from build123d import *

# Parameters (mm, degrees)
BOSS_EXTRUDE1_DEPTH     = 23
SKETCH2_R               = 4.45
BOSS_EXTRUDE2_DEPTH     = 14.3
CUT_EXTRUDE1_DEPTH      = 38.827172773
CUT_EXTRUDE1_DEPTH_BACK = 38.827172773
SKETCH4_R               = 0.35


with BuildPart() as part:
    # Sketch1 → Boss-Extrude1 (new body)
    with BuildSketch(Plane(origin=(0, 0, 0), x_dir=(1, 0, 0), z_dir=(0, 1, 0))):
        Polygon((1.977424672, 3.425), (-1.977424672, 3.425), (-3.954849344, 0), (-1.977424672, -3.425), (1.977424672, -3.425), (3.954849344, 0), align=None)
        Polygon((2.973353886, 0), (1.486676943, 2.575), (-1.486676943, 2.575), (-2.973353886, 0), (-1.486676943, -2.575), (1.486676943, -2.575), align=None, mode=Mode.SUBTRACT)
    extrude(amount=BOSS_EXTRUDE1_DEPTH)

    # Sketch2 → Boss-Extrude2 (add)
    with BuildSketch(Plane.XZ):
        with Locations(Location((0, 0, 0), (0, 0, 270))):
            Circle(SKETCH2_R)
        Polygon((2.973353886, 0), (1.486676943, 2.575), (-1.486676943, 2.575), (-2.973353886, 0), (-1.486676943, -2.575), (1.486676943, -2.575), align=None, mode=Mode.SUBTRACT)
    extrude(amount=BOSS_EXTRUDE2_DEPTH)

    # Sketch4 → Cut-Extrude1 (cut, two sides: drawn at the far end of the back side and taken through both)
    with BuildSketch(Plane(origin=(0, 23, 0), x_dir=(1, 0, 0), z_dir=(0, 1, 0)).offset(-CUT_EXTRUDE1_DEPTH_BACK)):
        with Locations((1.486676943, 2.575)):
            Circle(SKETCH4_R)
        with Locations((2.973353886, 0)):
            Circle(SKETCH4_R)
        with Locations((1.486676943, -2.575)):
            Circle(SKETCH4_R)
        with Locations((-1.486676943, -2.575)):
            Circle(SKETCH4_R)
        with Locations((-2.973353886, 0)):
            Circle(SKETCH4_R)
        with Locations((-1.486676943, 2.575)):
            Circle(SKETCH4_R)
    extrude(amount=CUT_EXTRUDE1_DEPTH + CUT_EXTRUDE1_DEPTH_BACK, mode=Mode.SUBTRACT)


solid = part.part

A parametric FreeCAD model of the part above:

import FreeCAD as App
import Part
import Sketcher

V = App.Vector
Q = App.Units.Quantity


def add_polygon(sketch, points):
    """Adds a closed chain of lines whose ends are joined by coincident constraints."""
    first, n = sketch.GeometryCount, len(points)
    for a, b in zip(points, points[1:] + points[:1]):
        sketch.addGeometry(Part.LineSegment(App.Vector(*a, 0), App.Vector(*b, 0)), False)
    for i in range(n):
        sketch.addConstraint(Sketcher.Constraint("Coincident", first + i, 2, first + (i + 1) % n, 1))

doc = App.newDocument("Part")
body = doc.addObject("PartDesign::Body", "Body")

sketch1 = body.newObject("Sketcher::SketchObject", "Sketch")
sketch1.AttachmentSupport = (doc.getObject("XZ_Plane"), [""])
sketch1.MapMode = "FlatFace"
add_polygon(sketch1, [(2, -3.4), (-2, -3.4), (-4, 0), (-2, 3.4), (2, 3.4), (4, 0)])
add_polygon(sketch1, [(1.5, -2.6), (3, 0), (1.5, 2.6), (-1.5, 2.6), (-3, 0), (-1.5, -2.6)])
sketch1.addConstraint(Sketcher.Constraint("Horizontal", 0))
sketch1.addConstraint(Sketcher.Constraint("Horizontal", 3))
sketch1.addConstraint(Sketcher.Constraint("Horizontal", 8))
sketch1.addConstraint(Sketcher.Constraint("Horizontal", 11))
sketch1.addConstraint(Sketcher.Constraint("Symmetric", 0, 2, 3, 2, -1, 1))
sketch1.addConstraint(Sketcher.Constraint("Symmetric", 1, 2, 4, 2, -1, 1))
sketch1.addConstraint(Sketcher.Constraint("Symmetric", 6, 2, 9, 2, -1, 1))
sketch1.addConstraint(Sketcher.Constraint("Symmetric", 7, 2, 10, 2, -1, 1))
sketch1.addConstraint(Sketcher.Constraint("PointOnObject", 1, 2, -1))
sketch1.addConstraint(Sketcher.Constraint("PointOnObject", 6, 2, -1))
sketch1.addConstraint(Sketcher.Constraint("Parallel", 2, 5))
sketch1.addConstraint(Sketcher.Constraint("Parallel", 5, 6))
sketch1.addConstraint(Sketcher.Constraint("Parallel", 4, 7))
sketch1.addConstraint(Sketcher.Constraint("Parallel", 6, 9))
sketch1.addConstraint(Sketcher.Constraint("Vertical", 0, 2, 2, 2))
sketch1.addConstraint(Sketcher.Constraint("Angle", 1, Q("120 deg")))
sketch1.addConstraint(Sketcher.Constraint("DistanceY", 0, 2, 2, 2, Q("6.85 mm")))
sketch1.addConstraint(Sketcher.Constraint("DistanceY", 7, 2, 3, 2, Q("0.85 mm")))
sketch1.addConstraint(Sketcher.Constraint("DistanceX", 0, 2, 0, 1, Q("3.954849 mm")))
sketch1.addConstraint(Sketcher.Constraint("DistanceX", 2, 2, 7, 2, Q("3.464102 mm")))
pad1 = body.newObject("PartDesign::Pad", "Pad")
pad1.Profile = sketch1
pad1.Length = 23
pad1.Reversed = True

sketch2 = body.newObject("Sketcher::SketchObject", "Sketch001")
sketch2.AttachmentSupport = (doc.getObject("XZ_Plane"), [""])
sketch2.MapMode = "FlatFace"
sketch2.addGeometry(Part.Circle(V(0, 0, 0), V(0, 0, 1), 4.5), False)
add_polygon(sketch2, [(1.5, 2.6), (3, 0), (1.5, -2.6), (-1.5, -2.6), (-3, 0), (-1.5, 2.6)])
sketch2.addConstraint(Sketcher.Constraint("Horizontal", 3))
sketch2.addConstraint(Sketcher.Constraint("Horizontal", 6))
sketch2.addConstraint(Sketcher.Constraint("Coincident", 0, 3, -1, 1))
sketch2.addConstraint(Sketcher.Constraint("Symmetric", 1, 2, 4, 2, -1, 1))
sketch2.addConstraint(Sketcher.Constraint("Symmetric", 2, 2, 5, 2, -1, 1))
sketch2.addConstraint(Sketcher.Constraint("PointOnObject", 1, 2, -1))
sketch2.addConstraint(Sketcher.Constraint("Parallel", 1, 4))
sketch2.addConstraint(Sketcher.Constraint("Vertical", 3, 2, 5, 2))
sketch2.addConstraint(Sketcher.Constraint("Diameter", 0, Q("8.9 mm")))
sketch2.addConstraint(Sketcher.Constraint("Angle", 1, Q("-60 deg")))
sketch2.addConstraint(Sketcher.Constraint("DistanceY", 3, 2, 5, 2, Q("5.15 mm")))
sketch2.addConstraint(Sketcher.Constraint("DistanceX", 3, 2, 3, 1, Q("2.973354 mm")))
pad2 = body.newObject("PartDesign::Pad", "Pad001")
pad2.Profile = sketch2
pad2.Length = 14.3

sketch3 = body.newObject("Sketcher::SketchObject", "Sketch002")
sketch3.AttachmentSupport = (doc.getObject("XZ_Plane"), [""])
sketch3.MapMode = "FlatFace"
sketch3.AttachmentOffset = App.Placement(V(0, 0, -23), App.Rotation())
sketch3.addGeometry(Part.Circle(V(1.49, -2.58, 0), V(0, 0, 1), 0.35), False)
sketch3.addGeometry(Part.Circle(V(2.97, 0, 0), V(0, 0, 1), 0.35), False)
sketch3.addGeometry(Part.Circle(V(1.49, 2.58, 0), V(0, 0, 1), 0.35), False)
sketch3.addGeometry(Part.Circle(V(-1.49, 2.58, 0), V(0, 0, 1), 0.35), False)
sketch3.addGeometry(Part.Circle(V(-2.97, 0, 0), V(0, 0, 1), 0.35), False)
sketch3.addGeometry(Part.Circle(V(-1.49, -2.58, 0), V(0, 0, 1), 0.35), False)
sketch3.addConstraint(Sketcher.Constraint("Equal", 0, 1))
sketch3.addConstraint(Sketcher.Constraint("Equal", 1, 2))
sketch3.addConstraint(Sketcher.Constraint("Equal", 2, 3))
sketch3.addConstraint(Sketcher.Constraint("Equal", 3, 4))
sketch3.addConstraint(Sketcher.Constraint("Equal", 4, 5))
sketch3.addConstraint(Sketcher.Constraint("Symmetric", 0, 3, 3, 3, -1, 1))
sketch3.addConstraint(Sketcher.Constraint("Symmetric", 1, 3, 4, 3, -1, 1))
sketch3.addConstraint(Sketcher.Constraint("Symmetric", 2, 3, 5, 3, -1, 1))
sketch3.addConstraint(Sketcher.Constraint("Symmetric", 2, 3, 3, 3, -2))
sketch3.addConstraint(Sketcher.Constraint("PointOnObject", 1, 3, -1))
sketch3.addConstraint(Sketcher.Constraint("Diameter", 0, Q("0.7 mm")))
sketch3.addConstraint(Sketcher.Constraint("DistanceY", 0, 3, 2, 3, Q("5.15 mm")))
sketch3.addConstraint(Sketcher.Constraint("DistanceX", 3, 3, 1, 3, Q("4.460031 mm")))
sketch3.addConstraint(Sketcher.Constraint("DistanceX", -1, 1, 0, 3, Q("1.486677 mm")))
pocket1 = body.newObject("PartDesign::Pocket", "Pocket")
pocket1.Profile = sketch3
pocket1.Type = "ThroughAll"
pocket1.Midplane = True

doc.recompute()
